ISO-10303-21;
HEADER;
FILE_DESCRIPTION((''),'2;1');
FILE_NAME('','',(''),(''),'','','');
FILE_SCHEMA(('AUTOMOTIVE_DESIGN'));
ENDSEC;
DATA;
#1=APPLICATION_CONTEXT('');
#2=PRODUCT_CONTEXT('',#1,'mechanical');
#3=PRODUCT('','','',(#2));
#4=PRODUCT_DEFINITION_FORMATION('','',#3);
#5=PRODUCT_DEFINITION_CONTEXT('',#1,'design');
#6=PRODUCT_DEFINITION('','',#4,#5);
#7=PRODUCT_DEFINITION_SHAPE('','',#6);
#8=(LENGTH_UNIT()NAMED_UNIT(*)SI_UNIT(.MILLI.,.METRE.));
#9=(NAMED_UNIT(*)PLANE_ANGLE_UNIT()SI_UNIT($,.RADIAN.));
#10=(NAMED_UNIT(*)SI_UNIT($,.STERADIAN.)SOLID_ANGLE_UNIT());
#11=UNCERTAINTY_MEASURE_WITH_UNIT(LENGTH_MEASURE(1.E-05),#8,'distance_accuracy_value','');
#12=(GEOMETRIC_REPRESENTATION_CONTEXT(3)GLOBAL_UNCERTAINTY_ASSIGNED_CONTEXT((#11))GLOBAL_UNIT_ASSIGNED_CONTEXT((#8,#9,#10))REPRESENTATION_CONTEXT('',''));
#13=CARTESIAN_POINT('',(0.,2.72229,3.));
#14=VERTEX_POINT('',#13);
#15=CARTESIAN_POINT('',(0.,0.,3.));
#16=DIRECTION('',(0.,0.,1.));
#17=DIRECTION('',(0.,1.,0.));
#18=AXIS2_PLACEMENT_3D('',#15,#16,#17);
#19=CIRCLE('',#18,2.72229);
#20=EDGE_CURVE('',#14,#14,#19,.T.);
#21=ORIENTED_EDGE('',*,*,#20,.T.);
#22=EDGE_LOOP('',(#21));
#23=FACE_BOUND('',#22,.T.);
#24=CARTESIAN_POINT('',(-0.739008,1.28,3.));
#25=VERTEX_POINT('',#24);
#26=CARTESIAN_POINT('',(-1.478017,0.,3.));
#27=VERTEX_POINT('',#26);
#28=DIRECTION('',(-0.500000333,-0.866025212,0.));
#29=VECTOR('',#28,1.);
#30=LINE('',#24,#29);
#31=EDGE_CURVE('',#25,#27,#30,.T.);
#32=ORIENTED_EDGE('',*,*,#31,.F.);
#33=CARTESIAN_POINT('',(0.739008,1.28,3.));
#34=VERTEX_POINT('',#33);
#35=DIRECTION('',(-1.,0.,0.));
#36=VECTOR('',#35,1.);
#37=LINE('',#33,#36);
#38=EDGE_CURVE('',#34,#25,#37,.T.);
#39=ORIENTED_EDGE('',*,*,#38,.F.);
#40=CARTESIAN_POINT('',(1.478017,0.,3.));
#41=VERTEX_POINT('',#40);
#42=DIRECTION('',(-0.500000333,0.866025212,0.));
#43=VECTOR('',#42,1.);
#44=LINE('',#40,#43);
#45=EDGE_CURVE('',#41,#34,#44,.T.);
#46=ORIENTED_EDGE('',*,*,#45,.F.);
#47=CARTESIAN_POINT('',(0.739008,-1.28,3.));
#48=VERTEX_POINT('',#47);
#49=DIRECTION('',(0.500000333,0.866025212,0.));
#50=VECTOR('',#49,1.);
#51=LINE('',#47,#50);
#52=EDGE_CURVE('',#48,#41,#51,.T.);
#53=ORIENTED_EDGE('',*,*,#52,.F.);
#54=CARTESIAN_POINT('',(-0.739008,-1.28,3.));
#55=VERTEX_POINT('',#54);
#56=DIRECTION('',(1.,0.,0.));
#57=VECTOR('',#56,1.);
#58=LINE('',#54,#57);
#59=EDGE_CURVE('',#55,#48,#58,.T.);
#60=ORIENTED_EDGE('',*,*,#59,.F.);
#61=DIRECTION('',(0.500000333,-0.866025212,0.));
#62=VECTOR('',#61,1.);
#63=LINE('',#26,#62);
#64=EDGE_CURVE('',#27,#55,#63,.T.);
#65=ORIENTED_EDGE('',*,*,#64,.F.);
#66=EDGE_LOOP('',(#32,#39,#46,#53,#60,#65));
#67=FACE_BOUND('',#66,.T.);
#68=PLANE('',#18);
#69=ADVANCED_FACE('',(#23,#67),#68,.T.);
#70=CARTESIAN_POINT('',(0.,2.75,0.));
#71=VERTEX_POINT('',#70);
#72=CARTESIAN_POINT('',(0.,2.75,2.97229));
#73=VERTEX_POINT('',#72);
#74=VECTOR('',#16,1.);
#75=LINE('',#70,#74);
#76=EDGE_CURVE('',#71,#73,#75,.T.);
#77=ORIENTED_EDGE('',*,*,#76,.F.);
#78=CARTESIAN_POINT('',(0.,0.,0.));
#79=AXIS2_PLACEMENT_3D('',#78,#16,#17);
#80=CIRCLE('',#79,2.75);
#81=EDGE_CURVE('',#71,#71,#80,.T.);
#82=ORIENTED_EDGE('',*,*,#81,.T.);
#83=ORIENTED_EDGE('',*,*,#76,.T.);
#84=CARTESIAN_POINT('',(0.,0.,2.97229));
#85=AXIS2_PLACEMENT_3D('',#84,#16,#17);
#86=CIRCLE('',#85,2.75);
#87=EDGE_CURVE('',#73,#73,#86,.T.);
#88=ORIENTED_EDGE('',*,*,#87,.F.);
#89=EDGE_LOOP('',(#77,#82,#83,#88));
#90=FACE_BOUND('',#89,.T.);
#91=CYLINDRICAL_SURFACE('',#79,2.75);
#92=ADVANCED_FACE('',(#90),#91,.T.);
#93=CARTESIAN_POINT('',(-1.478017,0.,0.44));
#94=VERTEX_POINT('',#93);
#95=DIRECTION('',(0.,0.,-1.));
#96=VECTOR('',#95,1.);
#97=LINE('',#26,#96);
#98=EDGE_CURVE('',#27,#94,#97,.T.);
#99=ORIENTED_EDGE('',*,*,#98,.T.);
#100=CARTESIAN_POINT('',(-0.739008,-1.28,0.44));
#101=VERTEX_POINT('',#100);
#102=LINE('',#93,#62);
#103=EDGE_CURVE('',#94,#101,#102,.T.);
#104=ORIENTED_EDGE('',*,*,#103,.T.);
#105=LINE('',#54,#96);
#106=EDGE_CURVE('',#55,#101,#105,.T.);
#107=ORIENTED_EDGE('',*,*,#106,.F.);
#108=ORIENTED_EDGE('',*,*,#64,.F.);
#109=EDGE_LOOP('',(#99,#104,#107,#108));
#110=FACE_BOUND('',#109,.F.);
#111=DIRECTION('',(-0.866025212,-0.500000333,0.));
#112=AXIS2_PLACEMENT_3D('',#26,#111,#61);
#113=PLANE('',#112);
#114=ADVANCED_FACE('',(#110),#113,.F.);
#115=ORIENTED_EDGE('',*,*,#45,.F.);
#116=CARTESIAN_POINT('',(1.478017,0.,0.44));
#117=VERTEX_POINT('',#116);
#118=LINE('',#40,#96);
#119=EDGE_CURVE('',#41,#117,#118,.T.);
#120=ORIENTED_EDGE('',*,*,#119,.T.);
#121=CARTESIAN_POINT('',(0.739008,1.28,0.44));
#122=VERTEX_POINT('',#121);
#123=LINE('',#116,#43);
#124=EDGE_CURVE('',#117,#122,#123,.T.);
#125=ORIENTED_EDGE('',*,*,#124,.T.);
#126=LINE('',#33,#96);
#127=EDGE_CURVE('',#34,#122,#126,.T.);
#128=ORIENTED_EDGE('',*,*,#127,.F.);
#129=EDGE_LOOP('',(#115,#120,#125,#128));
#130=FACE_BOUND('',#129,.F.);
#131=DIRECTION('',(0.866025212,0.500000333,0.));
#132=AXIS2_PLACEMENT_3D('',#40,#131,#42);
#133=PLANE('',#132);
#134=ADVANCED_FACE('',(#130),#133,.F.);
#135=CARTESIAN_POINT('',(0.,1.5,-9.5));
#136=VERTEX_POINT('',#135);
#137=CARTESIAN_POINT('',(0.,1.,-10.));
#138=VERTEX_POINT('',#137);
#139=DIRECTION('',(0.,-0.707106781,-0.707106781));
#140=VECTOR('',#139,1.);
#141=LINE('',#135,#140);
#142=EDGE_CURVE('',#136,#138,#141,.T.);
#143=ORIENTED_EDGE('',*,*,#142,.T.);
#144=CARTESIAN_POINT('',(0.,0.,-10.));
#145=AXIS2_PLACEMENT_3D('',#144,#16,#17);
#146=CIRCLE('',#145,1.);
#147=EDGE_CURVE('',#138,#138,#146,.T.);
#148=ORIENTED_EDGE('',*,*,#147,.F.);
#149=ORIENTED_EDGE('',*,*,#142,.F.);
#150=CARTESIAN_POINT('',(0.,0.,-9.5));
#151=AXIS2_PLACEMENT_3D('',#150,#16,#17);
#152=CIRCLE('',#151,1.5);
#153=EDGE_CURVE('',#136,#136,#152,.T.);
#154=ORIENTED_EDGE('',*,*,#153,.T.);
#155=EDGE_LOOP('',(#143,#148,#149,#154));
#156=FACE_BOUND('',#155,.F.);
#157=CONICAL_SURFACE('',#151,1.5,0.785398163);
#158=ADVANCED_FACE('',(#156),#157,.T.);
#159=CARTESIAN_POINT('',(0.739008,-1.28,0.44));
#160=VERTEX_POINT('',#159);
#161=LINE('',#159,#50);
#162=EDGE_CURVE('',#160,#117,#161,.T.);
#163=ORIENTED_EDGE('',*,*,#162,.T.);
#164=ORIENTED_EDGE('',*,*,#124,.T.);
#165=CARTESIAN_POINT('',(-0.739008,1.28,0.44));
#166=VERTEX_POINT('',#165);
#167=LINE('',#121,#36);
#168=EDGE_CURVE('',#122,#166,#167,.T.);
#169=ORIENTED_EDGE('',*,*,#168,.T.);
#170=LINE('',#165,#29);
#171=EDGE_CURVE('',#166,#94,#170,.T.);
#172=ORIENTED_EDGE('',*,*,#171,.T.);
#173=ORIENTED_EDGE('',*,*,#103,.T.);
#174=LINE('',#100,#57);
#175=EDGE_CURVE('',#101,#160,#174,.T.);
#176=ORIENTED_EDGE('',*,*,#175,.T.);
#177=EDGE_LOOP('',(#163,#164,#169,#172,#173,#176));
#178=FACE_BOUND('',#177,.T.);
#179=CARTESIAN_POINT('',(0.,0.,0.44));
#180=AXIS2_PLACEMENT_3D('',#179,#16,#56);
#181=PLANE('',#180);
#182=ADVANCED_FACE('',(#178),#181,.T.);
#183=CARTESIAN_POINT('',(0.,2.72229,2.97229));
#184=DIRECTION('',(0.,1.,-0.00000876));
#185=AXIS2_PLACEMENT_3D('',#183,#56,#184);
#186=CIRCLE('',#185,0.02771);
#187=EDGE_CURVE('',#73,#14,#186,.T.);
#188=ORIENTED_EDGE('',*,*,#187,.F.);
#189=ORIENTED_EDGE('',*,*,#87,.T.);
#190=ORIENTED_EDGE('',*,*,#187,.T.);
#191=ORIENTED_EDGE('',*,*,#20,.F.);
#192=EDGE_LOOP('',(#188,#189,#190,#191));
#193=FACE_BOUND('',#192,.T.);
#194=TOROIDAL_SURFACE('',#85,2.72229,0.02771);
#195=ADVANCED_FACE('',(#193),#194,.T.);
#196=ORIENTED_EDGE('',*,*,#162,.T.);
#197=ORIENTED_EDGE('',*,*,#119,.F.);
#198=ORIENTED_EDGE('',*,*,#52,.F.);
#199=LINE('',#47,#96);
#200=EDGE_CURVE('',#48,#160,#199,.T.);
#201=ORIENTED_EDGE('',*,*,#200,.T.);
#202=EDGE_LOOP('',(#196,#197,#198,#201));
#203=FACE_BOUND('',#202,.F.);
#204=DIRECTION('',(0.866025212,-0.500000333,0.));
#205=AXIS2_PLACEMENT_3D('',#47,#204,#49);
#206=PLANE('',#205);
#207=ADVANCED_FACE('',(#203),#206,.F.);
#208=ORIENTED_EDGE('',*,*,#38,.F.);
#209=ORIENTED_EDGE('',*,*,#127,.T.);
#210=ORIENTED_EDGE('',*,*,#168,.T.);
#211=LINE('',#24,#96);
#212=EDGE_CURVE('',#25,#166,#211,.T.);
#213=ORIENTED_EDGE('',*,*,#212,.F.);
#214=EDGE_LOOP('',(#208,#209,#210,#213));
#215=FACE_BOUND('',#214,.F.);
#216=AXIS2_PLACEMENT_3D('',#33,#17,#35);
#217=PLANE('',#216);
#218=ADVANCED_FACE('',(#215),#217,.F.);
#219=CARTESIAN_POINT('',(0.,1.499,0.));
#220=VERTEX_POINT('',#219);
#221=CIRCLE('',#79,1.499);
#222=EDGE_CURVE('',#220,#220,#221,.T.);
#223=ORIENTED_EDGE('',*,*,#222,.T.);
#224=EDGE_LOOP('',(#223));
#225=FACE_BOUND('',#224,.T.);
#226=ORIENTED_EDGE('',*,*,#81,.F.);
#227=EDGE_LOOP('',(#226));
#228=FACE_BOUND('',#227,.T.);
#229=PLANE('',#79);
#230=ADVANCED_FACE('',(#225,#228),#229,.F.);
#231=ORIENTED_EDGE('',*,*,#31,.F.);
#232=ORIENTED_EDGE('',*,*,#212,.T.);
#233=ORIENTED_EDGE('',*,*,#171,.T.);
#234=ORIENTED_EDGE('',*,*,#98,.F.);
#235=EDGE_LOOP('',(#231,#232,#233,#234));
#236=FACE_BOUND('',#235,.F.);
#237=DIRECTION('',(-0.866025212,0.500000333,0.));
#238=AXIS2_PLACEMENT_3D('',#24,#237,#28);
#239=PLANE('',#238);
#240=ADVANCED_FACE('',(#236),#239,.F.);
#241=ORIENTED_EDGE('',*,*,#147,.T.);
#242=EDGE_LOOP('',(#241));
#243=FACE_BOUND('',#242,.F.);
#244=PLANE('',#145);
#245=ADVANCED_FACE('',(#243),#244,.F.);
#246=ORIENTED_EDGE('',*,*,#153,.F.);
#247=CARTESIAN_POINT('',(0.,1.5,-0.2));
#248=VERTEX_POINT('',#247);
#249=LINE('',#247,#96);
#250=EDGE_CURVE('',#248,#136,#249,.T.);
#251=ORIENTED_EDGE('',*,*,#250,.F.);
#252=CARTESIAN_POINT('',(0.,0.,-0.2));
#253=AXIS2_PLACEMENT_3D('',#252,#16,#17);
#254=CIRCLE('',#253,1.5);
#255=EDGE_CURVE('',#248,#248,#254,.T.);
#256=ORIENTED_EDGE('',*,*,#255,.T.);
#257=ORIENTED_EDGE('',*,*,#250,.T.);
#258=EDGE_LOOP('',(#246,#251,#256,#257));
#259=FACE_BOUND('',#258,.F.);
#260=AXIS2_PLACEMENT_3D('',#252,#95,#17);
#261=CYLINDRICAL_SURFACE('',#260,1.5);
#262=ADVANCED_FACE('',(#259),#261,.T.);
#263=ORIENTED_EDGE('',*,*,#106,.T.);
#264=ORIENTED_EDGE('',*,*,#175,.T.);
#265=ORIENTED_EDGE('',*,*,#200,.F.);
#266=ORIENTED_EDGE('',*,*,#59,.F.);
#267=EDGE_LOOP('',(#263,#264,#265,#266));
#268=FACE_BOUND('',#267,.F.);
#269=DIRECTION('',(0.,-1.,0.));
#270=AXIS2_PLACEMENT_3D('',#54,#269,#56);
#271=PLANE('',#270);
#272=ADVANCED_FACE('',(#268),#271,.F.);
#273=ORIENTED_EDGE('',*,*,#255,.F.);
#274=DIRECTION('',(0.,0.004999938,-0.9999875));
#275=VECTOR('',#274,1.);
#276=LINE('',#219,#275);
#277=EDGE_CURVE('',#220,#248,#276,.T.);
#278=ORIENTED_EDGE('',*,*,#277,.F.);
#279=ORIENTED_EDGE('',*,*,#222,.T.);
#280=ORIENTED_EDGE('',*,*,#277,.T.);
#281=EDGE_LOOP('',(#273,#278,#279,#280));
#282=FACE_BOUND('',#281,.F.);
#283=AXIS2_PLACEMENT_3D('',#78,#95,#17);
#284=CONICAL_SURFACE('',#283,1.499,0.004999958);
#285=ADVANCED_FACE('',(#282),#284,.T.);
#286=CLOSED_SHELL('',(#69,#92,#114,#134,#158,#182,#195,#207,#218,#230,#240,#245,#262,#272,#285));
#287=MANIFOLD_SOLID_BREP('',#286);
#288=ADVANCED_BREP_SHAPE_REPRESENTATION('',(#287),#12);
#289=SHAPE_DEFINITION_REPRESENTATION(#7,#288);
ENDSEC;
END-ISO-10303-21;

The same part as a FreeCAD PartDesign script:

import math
import FreeCAD as App
import Part
import Sketcher
from FreeCAD import Vector
Q = App.Units.Quantity


def add_polygon(sketch, points):
    """Adds a closed chain of lines whose ends are joined by coincident constraints."""
    first, n = sketch.GeometryCount, len(points)
    for a, b in zip(points, points[1:] + points[:1]):
        sketch.addGeometry(Part.LineSegment(App.Vector(*a, 0), App.Vector(*b, 0)), False)
    for i in range(n):
        sketch.addConstraint(Sketcher.Constraint("Coincident", first + i, 2, first + (i + 1) % n, 1))

doc = App.newDocument("Part")
params = doc.addObject("Spreadsheet::Sheet", "Params")
for row, (alias, value) in enumerate([
    ("sketch1_width", "1 mm"),
    ("sketch1_height", "13 mm"),
    ("sketch1_height2", "9.3 mm"),
    ("revolution_angle", "360 deg"),
    ("pocket1_length", "2.56 mm"),
], start=1):
    params.set(f"A{row}", alias)
    params.set(f"B{row}", "=" + value)
    params.setAlias(f"B{row}", alias)

body = doc.addObject("PartDesign::Body", "Body")

sketch1 = doc.addObject("Sketcher::SketchObject", "Sketch")
body.addObject(sketch1)
sketch1.AttachmentSupport = (doc.YZ_Plane, [""])
sketch1.MapMode = "FlatFace"
sketch1.addGeometry([
    Part.LineSegment(Vector(1.499, 0, 0), Vector(2.75, 0, 0)),
    Part.LineSegment(Vector(2.75, 0, 0), Vector(2.75, 2.972, 0)),
    Part.ArcOfCircle(Part.Circle(Vector(2.722, 2.972, 0), Vector(0, 0, 1), 0.028), math.radians(0), math.radians(90)),
    Part.LineSegment(Vector(2.722, 3, 0), Vector(0, 3, 0)),
    Part.LineSegment(Vector(0, 3, 0), Vector(0, -10, 0)),
    Part.LineSegment(Vector(0, -10, 0), Vector(1, -10, 0)),
    Part.LineSegment(Vector(1, -10, 0), Vector(1.5, -9.5, 0)),
    Part.LineSegment(Vector(1.5, -9.5, 0), Vector(1.5, -0.2, 0)),
    Part.LineSegment(Vector(1.5, -0.2, 0), Vector(1.499, 0, 0)),
], False)
sketch1.addConstraint([
    Sketcher.Constraint("Coincident", 0, 2, 1, 1),
    Sketcher.Constraint("Coincident", 1, 2, 2, 1),
    Sketcher.Constraint("Coincident", 2, 2, 3, 1),
    Sketcher.Constraint("Coincident", 3, 2, 4, 1),
    Sketcher.Constraint("Coincident", 4, 2, 5, 1),
    Sketcher.Constraint("Coincident", 5, 2, 6, 1),
    Sketcher.Constraint("Coincident", 6, 2, 7, 1),
    Sketcher.Constraint("Coincident", 7, 2, 8, 1),
    Sketcher.Constraint("Coincident", 8, 2, 0, 1),
    Sketcher.Constraint("Horizontal", 0),
    Sketcher.Constraint("Vertical", 1),
    Sketcher.Constraint("Horizontal", 3),
    Sketcher.Constraint("Vertical", 4),
    Sketcher.Constraint("Horizontal", 5),
    Sketcher.Constraint("Vertical", 7),
    Sketcher.Constraint("PointOnObject", 0, 2, -1),
    Sketcher.Constraint("PointOnObject", 3, 2, -2),
    Sketcher.Constraint("Horizontal", 2, 3, 1, 2),
    Sketcher.Constraint("DistanceX", 5, 1, 5, 2, 1.0),
    Sketcher.Constraint("DistanceY", 4, 2, 4, 1, 13.0),
    Sketcher.Constraint("Angle", 6, Q("45 deg")),
    Sketcher.Constraint("DistanceY", 7, 1, 7, 2, 9.3),
    Sketcher.Constraint("DistanceY", -1, 1, 2, 2, 3.0),
    Sketcher.Constraint("DistanceX", -1, 1, 6, 2, 1.5),
    Sketcher.Constraint("DistanceX", 0, 1, 0, 2, 1.251),
    Sketcher.Constraint("DistanceX", -1, 1, 0, 2, 2.75),
    Sketcher.Constraint("Radius", 2, 0.02771),
    Sketcher.Constraint("DistanceX", 3, 2, 3, 1, 2.72229),
])
sketch1.setExpression("Constraints[18]", "Params.sketch1_width")
sketch1.setExpression("Constraints[19]", "Params.sketch1_height")
sketch1.setExpression("Constraints[21]", "Params.sketch1_height2")
revolution = doc.addObject("PartDesign::Revolution", "Revolution")
body.addObject(revolution)
revolution.Profile = sketch1
revolution.ReferenceAxis = (sketch1, ["V_Axis"])
revolution.setExpression("Angle", "Params.revolution_angle")

sketch2 = doc.addObject("Sketcher::SketchObject", "Sketch001")
body.addObject(sketch2)
sketch2.AttachmentSupport = (doc.XY_Plane, [""])
sketch2.MapMode = "FlatFace"
sketch2.AttachmentOffset = App.Placement(Vector(0, 0, 3), App.Rotation())
add_polygon(sketch2, [(1.5, 0), (0.7, 1.3), (-0.7, 1.3), (-1.5, 0), (-0.7, -1.3), (0.7, -1.3)])
sketch2.addConstraint([
    Sketcher.Constraint("Horizontal", 1),
    Sketcher.Constraint("Horizontal", 4),
    Sketcher.Constraint("Symmetric", 0, 2, 3, 2, -1, 1),
    Sketcher.Constraint("Symmetric", 2, 2, 5, 2, -1, 1),
    Sketcher.Constraint("PointOnObject", 2, 2, -1),
    Sketcher.Constraint("Parallel", 2, 5),
    Sketcher.Constraint("Vertical", 1, 2, 3, 2),
    Sketcher.Constraint("DistanceY", -1, 1, 0, 2, 1.28),
    Sketcher.Constraint("DistanceX", 1, 2, 1, 1, 1.478016),
    Sketcher.Constraint("DistanceX", 2, 2, 1, 2, 0.739009),
])
pocket1 = doc.addObject("PartDesign::Pocket", "Pocket")
body.addObject(pocket1)
pocket1.Profile = sketch2
pocket1.setExpression("Length", "Params.pocket1_length")

doc.recompute()
